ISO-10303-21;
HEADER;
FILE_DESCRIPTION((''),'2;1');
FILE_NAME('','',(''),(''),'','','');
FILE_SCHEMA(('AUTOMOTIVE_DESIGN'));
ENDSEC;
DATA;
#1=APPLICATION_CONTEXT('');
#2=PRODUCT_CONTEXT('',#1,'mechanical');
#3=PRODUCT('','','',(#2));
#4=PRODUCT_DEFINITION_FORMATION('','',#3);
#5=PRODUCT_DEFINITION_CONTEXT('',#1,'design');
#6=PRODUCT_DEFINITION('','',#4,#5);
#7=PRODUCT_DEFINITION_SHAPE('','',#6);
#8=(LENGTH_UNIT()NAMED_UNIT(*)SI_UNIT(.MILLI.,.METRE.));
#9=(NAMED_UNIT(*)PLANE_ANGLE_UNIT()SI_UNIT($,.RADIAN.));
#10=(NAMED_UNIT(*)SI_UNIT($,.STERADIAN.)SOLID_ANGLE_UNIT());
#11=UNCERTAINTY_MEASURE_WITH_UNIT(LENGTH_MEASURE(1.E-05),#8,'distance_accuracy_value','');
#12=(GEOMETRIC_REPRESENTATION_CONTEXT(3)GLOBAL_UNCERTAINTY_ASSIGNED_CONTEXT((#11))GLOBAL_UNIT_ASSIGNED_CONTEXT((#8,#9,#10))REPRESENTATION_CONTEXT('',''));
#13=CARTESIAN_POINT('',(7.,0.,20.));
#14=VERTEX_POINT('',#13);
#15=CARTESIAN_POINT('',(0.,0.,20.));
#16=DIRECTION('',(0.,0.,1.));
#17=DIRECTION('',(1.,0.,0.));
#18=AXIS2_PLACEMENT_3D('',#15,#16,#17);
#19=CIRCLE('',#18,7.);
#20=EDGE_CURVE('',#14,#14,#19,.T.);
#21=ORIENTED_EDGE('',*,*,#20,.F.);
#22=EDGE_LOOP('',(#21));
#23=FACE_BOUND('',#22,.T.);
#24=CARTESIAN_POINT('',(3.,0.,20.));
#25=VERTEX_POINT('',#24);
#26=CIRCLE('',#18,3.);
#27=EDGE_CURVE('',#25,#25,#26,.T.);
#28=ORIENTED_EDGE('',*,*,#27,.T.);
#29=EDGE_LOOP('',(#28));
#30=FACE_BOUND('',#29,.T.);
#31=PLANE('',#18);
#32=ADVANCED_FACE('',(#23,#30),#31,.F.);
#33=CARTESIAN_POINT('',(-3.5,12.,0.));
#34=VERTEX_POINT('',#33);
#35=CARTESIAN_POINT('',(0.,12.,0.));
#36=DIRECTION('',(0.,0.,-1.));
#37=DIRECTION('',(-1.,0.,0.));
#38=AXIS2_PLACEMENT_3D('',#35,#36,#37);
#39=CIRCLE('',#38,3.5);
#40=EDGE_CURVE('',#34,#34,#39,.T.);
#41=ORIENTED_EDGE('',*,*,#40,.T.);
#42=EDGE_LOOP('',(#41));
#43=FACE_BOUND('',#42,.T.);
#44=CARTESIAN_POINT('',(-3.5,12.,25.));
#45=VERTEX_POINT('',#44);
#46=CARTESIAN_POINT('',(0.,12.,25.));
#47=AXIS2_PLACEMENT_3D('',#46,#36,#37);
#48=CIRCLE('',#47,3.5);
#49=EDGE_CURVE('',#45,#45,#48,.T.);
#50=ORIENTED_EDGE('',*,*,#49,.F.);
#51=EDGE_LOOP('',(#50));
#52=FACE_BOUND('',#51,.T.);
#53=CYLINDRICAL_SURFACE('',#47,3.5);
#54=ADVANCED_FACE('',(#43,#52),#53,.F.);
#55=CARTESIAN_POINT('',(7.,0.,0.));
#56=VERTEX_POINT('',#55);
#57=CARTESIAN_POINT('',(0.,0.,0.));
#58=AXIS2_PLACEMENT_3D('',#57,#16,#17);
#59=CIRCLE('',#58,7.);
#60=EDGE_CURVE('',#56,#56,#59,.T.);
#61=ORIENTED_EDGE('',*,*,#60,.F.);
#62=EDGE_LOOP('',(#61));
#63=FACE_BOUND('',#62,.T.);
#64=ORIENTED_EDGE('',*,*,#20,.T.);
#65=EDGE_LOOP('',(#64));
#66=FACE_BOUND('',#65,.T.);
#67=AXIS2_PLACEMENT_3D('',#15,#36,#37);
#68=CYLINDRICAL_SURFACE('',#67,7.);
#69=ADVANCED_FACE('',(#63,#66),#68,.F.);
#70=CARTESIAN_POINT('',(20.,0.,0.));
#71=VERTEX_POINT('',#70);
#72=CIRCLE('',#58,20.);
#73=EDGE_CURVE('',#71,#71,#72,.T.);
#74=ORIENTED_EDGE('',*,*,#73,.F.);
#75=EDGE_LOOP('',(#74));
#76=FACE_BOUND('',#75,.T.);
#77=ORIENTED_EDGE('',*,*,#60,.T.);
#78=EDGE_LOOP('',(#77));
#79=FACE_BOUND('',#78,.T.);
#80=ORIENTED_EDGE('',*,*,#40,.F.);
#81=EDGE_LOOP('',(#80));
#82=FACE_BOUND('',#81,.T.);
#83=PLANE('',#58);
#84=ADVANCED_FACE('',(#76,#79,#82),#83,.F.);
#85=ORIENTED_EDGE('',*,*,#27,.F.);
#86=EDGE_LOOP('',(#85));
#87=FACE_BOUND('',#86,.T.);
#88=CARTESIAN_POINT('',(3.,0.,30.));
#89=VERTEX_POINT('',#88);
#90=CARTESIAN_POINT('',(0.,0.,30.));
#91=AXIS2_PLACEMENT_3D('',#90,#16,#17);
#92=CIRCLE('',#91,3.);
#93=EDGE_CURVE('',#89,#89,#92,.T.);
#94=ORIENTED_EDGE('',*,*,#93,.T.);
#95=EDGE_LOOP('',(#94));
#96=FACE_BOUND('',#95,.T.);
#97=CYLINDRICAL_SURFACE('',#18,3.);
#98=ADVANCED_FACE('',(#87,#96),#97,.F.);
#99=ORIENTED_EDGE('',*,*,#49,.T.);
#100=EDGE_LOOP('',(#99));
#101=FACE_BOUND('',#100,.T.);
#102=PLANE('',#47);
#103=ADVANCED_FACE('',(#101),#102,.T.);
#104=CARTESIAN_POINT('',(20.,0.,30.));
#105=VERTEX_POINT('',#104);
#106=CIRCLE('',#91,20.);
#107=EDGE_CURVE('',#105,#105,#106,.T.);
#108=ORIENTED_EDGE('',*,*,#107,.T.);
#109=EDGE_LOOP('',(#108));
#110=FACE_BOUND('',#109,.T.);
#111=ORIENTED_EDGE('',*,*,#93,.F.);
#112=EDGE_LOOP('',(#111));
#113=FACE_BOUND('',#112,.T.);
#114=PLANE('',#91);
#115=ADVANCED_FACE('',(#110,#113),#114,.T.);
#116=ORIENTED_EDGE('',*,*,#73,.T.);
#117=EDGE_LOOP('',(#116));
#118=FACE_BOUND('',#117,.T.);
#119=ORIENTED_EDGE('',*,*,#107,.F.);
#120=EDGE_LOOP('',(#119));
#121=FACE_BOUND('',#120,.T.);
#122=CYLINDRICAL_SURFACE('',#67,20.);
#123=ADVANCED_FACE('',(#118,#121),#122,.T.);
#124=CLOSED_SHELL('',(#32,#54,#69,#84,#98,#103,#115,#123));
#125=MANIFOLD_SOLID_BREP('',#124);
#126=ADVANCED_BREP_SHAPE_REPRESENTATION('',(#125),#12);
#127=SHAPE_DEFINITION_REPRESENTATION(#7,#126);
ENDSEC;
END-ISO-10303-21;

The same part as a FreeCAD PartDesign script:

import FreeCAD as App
import Part
import Sketcher
from FreeCAD import Vector
Q = App.Units.Quantity

doc = App.newDocument("Part")
body = doc.addObject("PartDesign::Body", "Body")

sketch1 = doc.addObject("Sketcher::SketchObject", "Sketch")
body.addObject(sketch1)
sketch1.AttachmentSupport = (doc.XY_Plane, [""])
sketch1.MapMode = "FlatFace"
sketch1.addGeometry(Part.Circle(Vector(0, 0, 0), Vector(0, 0, 1), 20), False)
sketch1.addGeometry(Part.Circle(Vector(0, 0, 0), Vector(0, 0, 1), 7), False)
sketch1.addConstraint(Sketcher.Constraint("Coincident", 0, 3, -1, 1))
sketch1.addConstraint(Sketcher.Constraint("Coincident", 1, 3, -1, 1))
sketch1.addConstraint(Sketcher.Constraint("Diameter", 0, Q("40 mm")))
sketch1.addConstraint(Sketcher.Constraint("Diameter", 1, Q("14 mm")))
pad1 = doc.addObject("PartDesign::Pad", "Pad")
body.addObject(pad1)
pad1.Profile = sketch1
pad1.Length = 20

sketch2 = doc.addObject("Sketcher::SketchObject", "Sketch001")
body.addObject(sketch2)
sketch2.AttachmentSupport = (doc.XY_Plane, [""])
sketch2.MapMode = "FlatFace"
sketch2.AttachmentOffset = App.Placement(Vector(0, 0, 20), App.Rotation())
sketch2.addGeometry(Part.Circle(Vector(0, 0, 0), Vector(0, 0, 1), 20), False)
sketch2.addConstraint(Sketcher.Constraint("Coincident", 0, 3, -1, 1))
sketch2.addConstraint(Sketcher.Constraint("Diameter", 0, Q("40 mm")))
pad2 = doc.addObject("PartDesign::Pad", "Pad001")
body.addObject(pad2)
pad2.Profile = sketch2
pad2.Length = 10

sketch3 = doc.addObject("Sketcher::SketchObject", "Sketch002")
body.addObject(sketch3)
sketch3.AttachmentSupport = (doc.XY_Plane, [""])
sketch3.MapMode = "FlatFace"
sketch3.AttachmentOffset = App.Placement(Vector(0, 0, 30), App.Rotation())
sketch3.addGeometry(Part.Circle(Vector(0, 0, 0), Vector(0, 0, 1), 3), False)
sketch3.addConstraint(Sketcher.Constraint("Coincident", 0, 3, -1, 1))
sketch3.addConstraint(Sketcher.Constraint("Diameter", 0, Q("6 mm")))
pocket1 = doc.addObject("PartDesign::Pocket", "Pocket")
body.addObject(pocket1)
pocket1.Profile = sketch3
pocket1.Length = 10

sketch4 = doc.addObject("Sketcher::SketchObject", "Sketch003")
body.addObject(sketch4)
sketch4.AttachmentSupport = (doc.XY_Plane, [""])
sketch4.MapMode = "FlatFace"
sketch4.addGeometry(Part.Circle(Vector(0, 12, 0), Vector(0, 0, 1), 3.5), False)
sketch4.addConstraint(Sketcher.Constraint("PointOnObject", 0, 3, -2))
sketch4.addConstraint(Sketcher.Constraint("Diameter", 0, Q("7 mm")))
sketch4.addConstraint(Sketcher.Constraint("DistanceY", -1, 1, 0, 3, Q("12 mm")))
pocket2 = doc.addObject("PartDesign::Pocket", "Pocket001")
body.addObject(pocket2)
pocket2.Profile = sketch4
pocket2.Length = 25
pocket2.Reversed = True

doc.recompute()
